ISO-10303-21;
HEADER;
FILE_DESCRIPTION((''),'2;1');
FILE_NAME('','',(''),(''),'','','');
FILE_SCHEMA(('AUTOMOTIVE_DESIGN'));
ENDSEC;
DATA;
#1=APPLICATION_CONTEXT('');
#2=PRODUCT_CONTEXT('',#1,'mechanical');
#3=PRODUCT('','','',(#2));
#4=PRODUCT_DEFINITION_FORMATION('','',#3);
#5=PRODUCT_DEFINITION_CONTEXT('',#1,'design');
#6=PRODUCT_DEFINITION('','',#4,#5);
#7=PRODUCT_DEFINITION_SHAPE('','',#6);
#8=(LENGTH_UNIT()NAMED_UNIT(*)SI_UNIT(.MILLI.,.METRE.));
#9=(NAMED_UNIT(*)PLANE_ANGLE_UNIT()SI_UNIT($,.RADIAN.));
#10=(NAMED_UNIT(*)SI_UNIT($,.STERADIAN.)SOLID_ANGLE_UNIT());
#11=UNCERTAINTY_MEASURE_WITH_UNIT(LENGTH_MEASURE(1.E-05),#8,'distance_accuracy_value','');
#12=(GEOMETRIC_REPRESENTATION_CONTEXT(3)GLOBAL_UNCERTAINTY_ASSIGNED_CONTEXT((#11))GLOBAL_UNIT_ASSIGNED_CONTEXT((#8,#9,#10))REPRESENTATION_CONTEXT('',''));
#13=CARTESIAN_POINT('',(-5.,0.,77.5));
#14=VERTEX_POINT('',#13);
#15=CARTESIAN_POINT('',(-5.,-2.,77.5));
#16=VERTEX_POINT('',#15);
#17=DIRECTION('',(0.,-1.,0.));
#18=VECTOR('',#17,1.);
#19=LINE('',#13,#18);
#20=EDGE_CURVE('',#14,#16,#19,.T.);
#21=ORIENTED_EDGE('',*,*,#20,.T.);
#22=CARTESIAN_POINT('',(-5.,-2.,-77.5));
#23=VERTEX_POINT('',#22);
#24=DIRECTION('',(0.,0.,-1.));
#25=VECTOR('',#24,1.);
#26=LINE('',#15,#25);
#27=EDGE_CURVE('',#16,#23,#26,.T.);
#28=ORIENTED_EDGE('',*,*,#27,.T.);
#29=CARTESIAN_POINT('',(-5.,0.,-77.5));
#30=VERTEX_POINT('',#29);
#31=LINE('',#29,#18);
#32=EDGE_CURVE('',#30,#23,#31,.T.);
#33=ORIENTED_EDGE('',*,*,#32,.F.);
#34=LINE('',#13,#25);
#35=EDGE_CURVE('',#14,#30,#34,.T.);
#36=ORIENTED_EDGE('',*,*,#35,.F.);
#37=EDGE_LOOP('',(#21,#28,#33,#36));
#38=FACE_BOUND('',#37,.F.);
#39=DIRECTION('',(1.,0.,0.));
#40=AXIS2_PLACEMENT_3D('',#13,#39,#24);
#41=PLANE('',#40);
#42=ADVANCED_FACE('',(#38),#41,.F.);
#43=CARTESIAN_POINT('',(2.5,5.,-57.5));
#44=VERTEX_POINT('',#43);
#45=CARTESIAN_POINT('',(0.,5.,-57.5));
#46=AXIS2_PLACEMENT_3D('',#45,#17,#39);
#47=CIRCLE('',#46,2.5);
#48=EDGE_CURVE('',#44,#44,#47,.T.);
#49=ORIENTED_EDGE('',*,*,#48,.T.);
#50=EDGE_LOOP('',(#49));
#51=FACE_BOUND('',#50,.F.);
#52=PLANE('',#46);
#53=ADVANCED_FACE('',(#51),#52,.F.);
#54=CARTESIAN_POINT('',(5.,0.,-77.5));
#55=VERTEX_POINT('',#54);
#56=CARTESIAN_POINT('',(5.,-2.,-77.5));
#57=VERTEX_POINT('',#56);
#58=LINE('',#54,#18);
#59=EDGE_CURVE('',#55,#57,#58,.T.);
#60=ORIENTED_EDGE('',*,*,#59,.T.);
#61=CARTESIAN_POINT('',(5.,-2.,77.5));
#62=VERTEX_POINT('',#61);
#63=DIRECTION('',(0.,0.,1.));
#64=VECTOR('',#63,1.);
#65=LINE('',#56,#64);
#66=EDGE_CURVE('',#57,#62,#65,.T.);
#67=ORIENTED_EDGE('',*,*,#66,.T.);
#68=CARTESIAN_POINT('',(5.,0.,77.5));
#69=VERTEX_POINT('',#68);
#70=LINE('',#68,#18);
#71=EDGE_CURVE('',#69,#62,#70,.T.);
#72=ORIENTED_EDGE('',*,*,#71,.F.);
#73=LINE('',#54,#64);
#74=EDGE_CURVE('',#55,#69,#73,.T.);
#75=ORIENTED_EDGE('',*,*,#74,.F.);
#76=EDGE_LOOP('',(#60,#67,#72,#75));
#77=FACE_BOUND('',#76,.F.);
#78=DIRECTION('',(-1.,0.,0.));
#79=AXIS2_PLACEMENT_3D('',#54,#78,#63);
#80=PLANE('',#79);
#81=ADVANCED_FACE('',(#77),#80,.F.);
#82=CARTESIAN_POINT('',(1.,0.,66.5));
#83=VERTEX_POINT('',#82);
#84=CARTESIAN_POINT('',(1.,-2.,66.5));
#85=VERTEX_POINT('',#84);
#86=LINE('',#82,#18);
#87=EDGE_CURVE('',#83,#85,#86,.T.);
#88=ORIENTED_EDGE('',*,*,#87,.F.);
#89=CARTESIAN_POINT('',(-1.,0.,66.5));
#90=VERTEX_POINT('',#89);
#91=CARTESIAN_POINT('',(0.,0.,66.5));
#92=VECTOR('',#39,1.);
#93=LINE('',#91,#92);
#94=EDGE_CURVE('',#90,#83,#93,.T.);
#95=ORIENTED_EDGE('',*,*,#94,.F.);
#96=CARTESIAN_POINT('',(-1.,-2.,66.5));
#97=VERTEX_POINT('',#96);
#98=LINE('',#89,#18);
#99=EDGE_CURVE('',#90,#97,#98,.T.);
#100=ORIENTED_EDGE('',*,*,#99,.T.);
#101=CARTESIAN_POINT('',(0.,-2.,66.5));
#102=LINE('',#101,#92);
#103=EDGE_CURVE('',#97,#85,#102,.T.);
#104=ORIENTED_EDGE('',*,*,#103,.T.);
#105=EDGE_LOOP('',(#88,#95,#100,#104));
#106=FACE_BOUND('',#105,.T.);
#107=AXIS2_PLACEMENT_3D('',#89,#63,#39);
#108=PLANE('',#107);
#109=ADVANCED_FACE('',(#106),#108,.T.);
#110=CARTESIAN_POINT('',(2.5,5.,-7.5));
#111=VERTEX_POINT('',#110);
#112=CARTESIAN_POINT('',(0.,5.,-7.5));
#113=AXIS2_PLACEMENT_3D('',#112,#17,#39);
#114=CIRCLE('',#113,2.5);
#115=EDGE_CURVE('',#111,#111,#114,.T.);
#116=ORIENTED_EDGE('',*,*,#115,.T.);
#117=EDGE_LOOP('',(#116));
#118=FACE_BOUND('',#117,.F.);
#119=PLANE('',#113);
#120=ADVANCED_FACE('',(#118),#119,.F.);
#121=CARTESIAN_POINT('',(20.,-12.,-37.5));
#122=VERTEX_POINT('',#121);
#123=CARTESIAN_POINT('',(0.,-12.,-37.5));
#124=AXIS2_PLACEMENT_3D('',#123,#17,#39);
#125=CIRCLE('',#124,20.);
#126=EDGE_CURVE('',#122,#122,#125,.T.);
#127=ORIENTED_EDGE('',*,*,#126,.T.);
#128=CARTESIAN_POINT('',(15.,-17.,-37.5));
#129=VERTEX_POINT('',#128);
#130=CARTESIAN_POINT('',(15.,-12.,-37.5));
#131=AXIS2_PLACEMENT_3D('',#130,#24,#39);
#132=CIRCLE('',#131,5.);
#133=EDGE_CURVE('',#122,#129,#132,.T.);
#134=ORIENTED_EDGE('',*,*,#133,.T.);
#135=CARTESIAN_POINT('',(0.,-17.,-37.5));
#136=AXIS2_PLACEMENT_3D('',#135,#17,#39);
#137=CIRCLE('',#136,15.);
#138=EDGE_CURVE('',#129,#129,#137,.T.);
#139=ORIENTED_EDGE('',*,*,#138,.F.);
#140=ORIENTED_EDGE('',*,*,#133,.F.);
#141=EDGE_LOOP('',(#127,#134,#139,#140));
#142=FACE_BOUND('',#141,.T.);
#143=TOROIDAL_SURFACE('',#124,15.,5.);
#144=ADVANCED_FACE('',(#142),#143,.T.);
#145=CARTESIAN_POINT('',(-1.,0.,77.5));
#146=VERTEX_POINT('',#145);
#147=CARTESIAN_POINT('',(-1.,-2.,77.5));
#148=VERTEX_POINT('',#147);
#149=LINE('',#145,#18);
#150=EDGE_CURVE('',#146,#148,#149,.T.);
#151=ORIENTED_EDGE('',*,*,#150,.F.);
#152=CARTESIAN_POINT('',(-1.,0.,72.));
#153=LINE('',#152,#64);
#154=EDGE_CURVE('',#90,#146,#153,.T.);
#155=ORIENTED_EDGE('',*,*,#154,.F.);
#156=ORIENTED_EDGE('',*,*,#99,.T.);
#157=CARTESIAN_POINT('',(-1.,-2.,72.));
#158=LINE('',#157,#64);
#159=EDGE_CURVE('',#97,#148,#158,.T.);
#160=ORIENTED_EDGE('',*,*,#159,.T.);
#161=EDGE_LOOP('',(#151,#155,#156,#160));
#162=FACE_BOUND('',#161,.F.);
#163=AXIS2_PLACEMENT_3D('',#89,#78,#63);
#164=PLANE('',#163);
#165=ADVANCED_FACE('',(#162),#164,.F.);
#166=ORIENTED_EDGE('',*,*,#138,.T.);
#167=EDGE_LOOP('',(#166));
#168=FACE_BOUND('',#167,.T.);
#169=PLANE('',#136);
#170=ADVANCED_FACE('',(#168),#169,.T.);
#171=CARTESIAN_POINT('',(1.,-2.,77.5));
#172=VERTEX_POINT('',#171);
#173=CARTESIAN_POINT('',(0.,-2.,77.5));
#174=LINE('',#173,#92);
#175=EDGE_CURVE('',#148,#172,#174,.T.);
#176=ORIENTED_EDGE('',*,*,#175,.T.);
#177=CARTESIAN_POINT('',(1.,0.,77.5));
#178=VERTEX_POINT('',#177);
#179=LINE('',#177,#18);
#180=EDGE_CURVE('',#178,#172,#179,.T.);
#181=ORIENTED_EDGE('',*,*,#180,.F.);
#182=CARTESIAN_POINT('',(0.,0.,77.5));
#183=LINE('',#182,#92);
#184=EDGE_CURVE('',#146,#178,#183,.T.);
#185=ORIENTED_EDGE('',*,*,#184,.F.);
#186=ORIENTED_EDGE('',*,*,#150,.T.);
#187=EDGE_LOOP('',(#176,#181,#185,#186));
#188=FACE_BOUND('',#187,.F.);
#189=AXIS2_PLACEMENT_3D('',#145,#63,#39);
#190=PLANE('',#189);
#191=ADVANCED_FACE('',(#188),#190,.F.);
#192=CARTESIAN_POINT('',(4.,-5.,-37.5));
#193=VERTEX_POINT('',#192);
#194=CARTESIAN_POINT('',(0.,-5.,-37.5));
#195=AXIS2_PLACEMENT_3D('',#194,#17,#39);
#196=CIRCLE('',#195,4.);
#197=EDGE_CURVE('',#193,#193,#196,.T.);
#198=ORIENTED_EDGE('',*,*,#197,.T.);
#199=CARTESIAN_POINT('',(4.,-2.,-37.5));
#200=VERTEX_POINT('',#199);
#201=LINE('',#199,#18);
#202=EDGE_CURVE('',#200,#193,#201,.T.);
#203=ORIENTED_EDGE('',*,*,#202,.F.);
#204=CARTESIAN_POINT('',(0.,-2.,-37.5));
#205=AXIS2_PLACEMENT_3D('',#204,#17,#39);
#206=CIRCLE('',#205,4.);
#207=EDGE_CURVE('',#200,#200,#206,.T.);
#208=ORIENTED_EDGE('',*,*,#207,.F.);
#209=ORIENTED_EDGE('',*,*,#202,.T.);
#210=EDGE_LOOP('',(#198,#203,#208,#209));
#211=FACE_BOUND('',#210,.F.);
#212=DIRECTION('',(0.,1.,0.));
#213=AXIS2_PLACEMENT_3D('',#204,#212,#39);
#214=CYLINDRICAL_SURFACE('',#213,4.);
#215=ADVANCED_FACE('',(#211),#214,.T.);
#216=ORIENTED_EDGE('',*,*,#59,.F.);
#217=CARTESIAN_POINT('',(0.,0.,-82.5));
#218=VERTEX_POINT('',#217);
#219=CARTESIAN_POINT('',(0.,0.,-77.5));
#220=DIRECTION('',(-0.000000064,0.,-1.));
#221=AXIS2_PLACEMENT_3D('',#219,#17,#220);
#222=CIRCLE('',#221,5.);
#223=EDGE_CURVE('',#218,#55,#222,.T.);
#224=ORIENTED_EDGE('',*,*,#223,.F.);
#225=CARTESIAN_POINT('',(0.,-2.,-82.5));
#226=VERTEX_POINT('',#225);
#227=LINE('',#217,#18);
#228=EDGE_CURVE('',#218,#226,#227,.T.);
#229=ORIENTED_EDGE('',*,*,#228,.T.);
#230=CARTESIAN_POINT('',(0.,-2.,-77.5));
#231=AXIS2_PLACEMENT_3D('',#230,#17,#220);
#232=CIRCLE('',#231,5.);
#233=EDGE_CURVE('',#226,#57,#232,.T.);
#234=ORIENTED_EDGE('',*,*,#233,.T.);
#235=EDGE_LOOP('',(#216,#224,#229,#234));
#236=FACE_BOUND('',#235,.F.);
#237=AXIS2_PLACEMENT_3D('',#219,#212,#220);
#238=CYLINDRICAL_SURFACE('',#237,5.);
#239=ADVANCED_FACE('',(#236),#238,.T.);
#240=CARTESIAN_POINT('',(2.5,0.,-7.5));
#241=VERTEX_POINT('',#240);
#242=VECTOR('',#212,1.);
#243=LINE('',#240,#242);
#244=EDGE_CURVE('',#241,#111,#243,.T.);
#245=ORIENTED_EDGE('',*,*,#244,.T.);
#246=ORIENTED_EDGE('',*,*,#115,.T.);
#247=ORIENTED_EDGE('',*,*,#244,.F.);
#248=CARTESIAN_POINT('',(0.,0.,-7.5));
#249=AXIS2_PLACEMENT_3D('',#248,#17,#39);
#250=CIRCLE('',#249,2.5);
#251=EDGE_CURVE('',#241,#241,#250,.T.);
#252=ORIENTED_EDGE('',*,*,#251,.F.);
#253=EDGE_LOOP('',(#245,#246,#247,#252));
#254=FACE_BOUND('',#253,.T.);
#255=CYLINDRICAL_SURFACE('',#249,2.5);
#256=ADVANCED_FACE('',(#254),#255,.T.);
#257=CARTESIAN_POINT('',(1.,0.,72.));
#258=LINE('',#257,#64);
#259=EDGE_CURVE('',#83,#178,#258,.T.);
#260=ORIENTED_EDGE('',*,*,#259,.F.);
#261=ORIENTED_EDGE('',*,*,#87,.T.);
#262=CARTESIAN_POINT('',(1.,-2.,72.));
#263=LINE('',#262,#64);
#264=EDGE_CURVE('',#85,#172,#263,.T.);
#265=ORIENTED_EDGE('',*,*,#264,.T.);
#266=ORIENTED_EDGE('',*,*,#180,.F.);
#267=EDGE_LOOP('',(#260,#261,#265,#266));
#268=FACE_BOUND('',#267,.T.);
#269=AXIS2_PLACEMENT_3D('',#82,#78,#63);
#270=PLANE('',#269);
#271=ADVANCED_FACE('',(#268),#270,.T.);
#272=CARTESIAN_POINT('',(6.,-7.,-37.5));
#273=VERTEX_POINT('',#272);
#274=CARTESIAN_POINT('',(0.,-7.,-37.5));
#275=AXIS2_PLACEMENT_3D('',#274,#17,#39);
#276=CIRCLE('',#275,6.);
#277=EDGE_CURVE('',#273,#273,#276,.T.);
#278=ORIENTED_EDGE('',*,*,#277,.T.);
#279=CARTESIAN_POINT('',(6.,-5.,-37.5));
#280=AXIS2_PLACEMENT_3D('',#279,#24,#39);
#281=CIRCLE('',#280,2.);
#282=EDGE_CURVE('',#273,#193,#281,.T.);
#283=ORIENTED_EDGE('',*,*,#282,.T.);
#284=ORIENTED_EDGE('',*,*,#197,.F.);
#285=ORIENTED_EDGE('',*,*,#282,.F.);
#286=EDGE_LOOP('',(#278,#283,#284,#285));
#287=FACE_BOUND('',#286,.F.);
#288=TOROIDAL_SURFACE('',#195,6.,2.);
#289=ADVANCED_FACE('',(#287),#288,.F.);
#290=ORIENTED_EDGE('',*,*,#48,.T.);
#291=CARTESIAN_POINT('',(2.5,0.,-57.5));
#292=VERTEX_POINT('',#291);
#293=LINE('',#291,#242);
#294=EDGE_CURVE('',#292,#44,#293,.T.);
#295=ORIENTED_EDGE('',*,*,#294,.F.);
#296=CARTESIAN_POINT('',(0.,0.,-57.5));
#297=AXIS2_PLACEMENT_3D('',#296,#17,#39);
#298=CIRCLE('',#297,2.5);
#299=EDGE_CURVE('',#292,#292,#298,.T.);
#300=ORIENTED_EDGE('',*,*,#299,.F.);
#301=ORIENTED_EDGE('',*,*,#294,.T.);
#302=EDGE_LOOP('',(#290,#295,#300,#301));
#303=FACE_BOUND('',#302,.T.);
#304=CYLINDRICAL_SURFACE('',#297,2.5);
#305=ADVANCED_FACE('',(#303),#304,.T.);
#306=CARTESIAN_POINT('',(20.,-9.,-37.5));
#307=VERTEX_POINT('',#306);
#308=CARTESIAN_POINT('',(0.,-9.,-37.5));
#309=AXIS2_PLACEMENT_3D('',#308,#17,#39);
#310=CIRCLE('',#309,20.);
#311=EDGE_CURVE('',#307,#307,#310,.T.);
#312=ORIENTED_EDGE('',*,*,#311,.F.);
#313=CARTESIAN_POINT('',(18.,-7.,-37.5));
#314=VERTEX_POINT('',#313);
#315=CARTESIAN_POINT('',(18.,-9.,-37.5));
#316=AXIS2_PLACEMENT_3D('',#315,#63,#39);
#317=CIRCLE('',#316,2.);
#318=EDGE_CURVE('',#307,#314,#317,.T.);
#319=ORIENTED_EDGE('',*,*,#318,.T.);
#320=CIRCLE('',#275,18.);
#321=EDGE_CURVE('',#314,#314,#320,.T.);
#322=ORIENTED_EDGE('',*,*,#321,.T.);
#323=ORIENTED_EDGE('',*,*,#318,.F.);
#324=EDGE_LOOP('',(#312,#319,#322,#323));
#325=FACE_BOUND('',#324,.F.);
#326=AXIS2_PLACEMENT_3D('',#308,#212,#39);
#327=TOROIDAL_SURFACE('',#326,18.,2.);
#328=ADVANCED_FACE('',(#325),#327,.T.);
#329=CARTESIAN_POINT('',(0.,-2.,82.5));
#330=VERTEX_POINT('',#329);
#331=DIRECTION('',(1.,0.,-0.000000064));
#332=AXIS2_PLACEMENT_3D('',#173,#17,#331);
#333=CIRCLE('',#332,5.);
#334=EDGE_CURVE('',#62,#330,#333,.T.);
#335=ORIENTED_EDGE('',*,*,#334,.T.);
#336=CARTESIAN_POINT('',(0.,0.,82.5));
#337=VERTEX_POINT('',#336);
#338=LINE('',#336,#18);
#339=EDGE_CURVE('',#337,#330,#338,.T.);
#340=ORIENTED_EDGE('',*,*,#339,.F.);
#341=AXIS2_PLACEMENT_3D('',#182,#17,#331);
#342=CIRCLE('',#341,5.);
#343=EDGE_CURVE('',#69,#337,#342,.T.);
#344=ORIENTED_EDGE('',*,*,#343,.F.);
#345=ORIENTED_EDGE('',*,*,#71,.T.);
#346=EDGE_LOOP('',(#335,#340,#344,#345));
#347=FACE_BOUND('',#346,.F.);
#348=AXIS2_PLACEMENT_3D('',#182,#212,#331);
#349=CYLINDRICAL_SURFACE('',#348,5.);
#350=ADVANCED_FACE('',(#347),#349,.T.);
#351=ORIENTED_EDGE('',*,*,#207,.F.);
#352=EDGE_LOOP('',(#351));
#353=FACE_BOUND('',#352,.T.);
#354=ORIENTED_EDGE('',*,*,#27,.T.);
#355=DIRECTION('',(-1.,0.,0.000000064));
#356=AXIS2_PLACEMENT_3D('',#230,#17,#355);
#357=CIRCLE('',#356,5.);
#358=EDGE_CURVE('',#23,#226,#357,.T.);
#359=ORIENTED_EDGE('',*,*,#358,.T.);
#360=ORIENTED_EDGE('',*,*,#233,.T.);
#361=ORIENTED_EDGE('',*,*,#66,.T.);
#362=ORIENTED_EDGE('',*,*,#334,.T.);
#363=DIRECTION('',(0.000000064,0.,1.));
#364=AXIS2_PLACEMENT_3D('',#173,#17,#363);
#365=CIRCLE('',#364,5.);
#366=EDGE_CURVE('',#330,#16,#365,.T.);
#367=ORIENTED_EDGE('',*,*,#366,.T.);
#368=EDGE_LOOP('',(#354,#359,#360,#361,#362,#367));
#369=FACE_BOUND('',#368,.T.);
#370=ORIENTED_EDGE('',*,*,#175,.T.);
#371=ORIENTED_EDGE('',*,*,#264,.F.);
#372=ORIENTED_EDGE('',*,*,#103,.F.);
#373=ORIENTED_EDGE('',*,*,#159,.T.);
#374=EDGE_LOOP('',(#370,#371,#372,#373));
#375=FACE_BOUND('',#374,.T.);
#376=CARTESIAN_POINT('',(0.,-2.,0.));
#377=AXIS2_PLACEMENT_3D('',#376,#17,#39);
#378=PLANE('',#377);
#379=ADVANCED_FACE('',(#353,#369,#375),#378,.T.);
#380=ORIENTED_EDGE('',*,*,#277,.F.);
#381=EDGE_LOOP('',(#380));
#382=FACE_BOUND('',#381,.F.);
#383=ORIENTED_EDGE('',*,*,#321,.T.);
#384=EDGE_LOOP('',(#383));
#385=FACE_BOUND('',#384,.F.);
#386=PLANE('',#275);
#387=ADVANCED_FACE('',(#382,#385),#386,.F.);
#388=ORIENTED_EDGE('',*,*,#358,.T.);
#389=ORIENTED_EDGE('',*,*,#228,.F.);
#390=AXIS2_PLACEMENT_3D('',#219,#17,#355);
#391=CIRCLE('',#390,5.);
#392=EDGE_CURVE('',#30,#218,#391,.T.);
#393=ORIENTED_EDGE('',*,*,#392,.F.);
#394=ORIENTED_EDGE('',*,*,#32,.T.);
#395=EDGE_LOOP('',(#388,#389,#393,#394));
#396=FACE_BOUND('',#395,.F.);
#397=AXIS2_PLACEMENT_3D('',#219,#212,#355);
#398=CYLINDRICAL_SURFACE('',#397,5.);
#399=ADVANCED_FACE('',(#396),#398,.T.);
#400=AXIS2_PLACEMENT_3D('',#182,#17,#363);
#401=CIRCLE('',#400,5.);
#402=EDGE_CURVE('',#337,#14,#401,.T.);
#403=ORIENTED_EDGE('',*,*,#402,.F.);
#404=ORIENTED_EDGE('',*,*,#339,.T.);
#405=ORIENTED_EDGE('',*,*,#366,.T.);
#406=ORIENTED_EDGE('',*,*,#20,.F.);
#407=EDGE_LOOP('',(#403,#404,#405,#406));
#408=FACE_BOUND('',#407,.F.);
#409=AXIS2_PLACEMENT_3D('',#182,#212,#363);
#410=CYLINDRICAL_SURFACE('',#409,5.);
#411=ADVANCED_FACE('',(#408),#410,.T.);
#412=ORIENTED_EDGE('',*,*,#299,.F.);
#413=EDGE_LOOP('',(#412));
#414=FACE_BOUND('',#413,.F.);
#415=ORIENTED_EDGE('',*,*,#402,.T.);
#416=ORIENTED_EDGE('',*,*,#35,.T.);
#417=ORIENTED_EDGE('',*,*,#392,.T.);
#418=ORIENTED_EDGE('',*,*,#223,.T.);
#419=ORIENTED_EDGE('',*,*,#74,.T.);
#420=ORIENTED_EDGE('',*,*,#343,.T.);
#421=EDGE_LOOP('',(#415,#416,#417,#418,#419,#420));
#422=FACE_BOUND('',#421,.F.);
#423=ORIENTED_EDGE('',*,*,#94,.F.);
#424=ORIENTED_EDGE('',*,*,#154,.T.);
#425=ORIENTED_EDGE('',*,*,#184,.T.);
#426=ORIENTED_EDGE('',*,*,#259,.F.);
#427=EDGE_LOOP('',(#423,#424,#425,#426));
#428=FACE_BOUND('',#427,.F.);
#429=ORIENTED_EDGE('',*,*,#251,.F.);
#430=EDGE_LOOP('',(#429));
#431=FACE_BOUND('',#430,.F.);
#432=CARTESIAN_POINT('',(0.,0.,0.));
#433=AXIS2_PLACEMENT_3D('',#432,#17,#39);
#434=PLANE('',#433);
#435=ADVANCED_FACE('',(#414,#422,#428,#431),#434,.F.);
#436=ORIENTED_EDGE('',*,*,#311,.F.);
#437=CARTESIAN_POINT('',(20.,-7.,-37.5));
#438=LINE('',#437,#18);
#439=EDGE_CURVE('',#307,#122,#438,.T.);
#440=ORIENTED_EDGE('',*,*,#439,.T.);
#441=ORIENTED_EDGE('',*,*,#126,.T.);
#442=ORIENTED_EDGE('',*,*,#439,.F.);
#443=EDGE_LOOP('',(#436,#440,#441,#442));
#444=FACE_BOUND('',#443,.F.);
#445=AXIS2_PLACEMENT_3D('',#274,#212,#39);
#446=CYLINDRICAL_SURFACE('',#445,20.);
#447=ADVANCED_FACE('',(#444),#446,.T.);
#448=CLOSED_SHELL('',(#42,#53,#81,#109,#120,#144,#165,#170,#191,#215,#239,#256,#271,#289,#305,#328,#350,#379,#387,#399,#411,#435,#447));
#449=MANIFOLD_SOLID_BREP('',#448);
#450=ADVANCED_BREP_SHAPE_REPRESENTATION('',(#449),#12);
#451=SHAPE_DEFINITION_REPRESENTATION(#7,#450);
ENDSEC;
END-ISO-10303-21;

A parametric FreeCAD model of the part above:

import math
import FreeCAD as App
import Part
import Sketcher

V = App.Vector
Q = App.Units.Quantity


def edges_at(feature, points):
    """Names of the edges that pass closest to the given points."""
    edges = feature.Shape.Edges
    near = lambda p: min(range(len(edges)), key=lambda i: edges[i].distToShape(Part.Vertex(*p))[0])
    return sorted({f"Edge{near(p) + 1}" for p in points})


def add_polygon(sketch, points):
    """Adds a closed chain of lines whose ends are joined by coincident constraints."""
    first, n = sketch.GeometryCount, len(points)
    for a, b in zip(points, points[1:] + points[:1]):
        sketch.addGeometry(Part.LineSegment(App.Vector(*a, 0), App.Vector(*b, 0)), False)
    for i in range(n):
        sketch.addConstraint(Sketcher.Constraint("Coincident", first + i, 2, first + (i + 1) % n, 1))

doc = App.newDocument("Part")
body = doc.addObject("PartDesign::Body", "Body")

sketch1 = body.newObject("Sketcher::SketchObject", "Sketch")
sketch1.AttachmentSupport = (doc.getObject("XZ_Plane"), [""])
sketch1.MapMode = "FlatFace"
sketch1.addGeometry(Part.LineSegment(V(5, -77.5, 0), V(5, 77.5, 0)), False)
sketch1.addGeometry(Part.ArcOfCircle(Part.Circle(V(0, 77.5, 0), V(0, 0, 1), 5), math.radians(-0.000004), math.radians(90.000004)), False)
sketch1.addGeometry(Part.ArcOfCircle(Part.Circle(V(0, 77.5, 0), V(0, 0, 1), 5), math.radians(89.999996), math.radians(180.000004)), False)
sketch1.addGeometry(Part.LineSegment(V(-5, 77.5, 0), V(-5, -77.5, 0)), False)
sketch1.addGeometry(Part.ArcOfCircle(Part.Circle(V(0, -77.5, 0), V(0, 0, 1), 5), math.radians(179.999996), math.radians(270.000004)), False)
sketch1.addGeometry(Part.ArcOfCircle(Part.Circle(V(0, -77.5, 0), V(0, 0, 1), 5), math.radians(-90.000004), math.radians(0.000004)), False)
add_polygon(sketch1, [(1, 66.5), (-1, 66.5), (-1, 77.5), (1, 77.5)])
sketch1.addConstraint([
    Sketcher.Constraint("Tangent", 0, 2, 1, 1),
    Sketcher.Constraint("Tangent", 1, 2, 2, 1),
    Sketcher.Constraint("Tangent", 2, 2, 3, 1),
    Sketcher.Constraint("Tangent", 3, 2, 4, 1),
    Sketcher.Constraint("Tangent", 4, 2, 5, 1),
    Sketcher.Constraint("Tangent", 5, 2, 0, 1),
    Sketcher.Constraint("Vertical", 0),
    Sketcher.Constraint("Vertical", 3),
    Sketcher.Constraint("Horizontal", 6),
    Sketcher.Constraint("Vertical", 7),
    Sketcher.Constraint("Horizontal", 8),
    Sketcher.Constraint("Vertical", 9),
    Sketcher.Constraint("Equal", 1, 2),
    Sketcher.Constraint("Equal", 2, 4),
    Sketcher.Constraint("Symmetric", 1, 3, 4, 3, -1, 1),
    Sketcher.Constraint("PointOnObject", 1, 2, -2),
    Sketcher.Constraint("PointOnObject", 4, 2, -2),
    Sketcher.Constraint("Horizontal", 2, 2, 7, 2),
    Sketcher.Constraint("Radius", 1, Q("5 mm")),
    Sketcher.Constraint("DistanceX", 6, 2, 6, 1, Q("2 mm")),
    Sketcher.Constraint("DistanceY", 0, 1, 0, 2, Q("155 mm")),
    Sketcher.Constraint("DistanceY", 7, 1, 7, 2, Q("11 mm")),
    Sketcher.Constraint("DistanceX", 6, 2, -1, 1, Q("1 mm")),
])
pad1 = body.newObject("PartDesign::Pad", "Pad")
pad1.Profile = sketch1
pad1.Length = 2

sketch2 = body.newObject("Sketcher::SketchObject", "Sketch001")
sketch2.AttachmentSupport = (doc.getObject("XZ_Plane"), [""])
sketch2.MapMode = "FlatFace"
sketch2.addGeometry([
    Part.Circle(V(0, -7.5, 0), V(0, 0, 1), 2.5),
    Part.Circle(V(0, -57.5, 0), V(0, 0, 1), 2.5),
], False)
sketch2.addConstraint([
    Sketcher.Constraint("Equal", 0, 1),
    Sketcher.Constraint("PointOnObject", 0, 3, -2),
    Sketcher.Constraint("PointOnObject", 1, 3, -2),
    Sketcher.Constraint("Diameter", 0, Q("5 mm")),
    Sketcher.Constraint("DistanceY", 1, 3, 0, 3, Q("50 mm")),
    Sketcher.Constraint("DistanceY", 0, 3, -1, 1, Q("7.5 mm")),
])
pad2 = body.newObject("PartDesign::Pad", "Pad001")
pad2.Profile = sketch2
pad2.Length = 5
pad2.Reversed = True

sketch3 = body.newObject("Sketcher::SketchObject", "Sketch002")
sketch3.AttachmentSupport = (doc.getObject("XZ_Plane"), [""])
sketch3.MapMode = "FlatFace"
sketch3.AttachmentOffset = App.Placement(V(0, 0, 2), App.Rotation())
sketch3.addGeometry(Part.Circle(V(0, -37.5, 0), V(0, 0, 1), 4), False)
sketch3.addConstraint([
    Sketcher.Constraint("PointOnObject", 0, 3, -2),
    Sketcher.Constraint("Diameter", 0, Q("8 mm")),
    Sketcher.Constraint("DistanceY", 0, 3, -1, 1, Q("37.5 mm")),
])
pad3 = body.newObject("PartDesign::Pad", "Pad002")
pad3.Profile = sketch3
pad3.Length = 5

sketch4 = body.newObject("Sketcher::SketchObject", "Sketch003")
sketch4.AttachmentSupport = (doc.getObject("XZ_Plane"), [""])
sketch4.MapMode = "FlatFace"
sketch4.AttachmentOffset = App.Placement(V(0, 0, 7), App.Rotation())
sketch4.addGeometry(Part.Circle(V(0, -37.5, 0), V(0, 0, 1), 20), False)
sketch4.addConstraint([
    Sketcher.Constraint("PointOnObject", 0, 3, -2),
    Sketcher.Constraint("Diameter", 0, Q("40 mm")),
    Sketcher.Constraint("DistanceY", 0, 3, -1, 1, Q("37.5 mm")),
])
pad4 = body.newObject("PartDesign::Pad", "Pad003")
pad4.Profile = sketch4
pad4.Length = 10
doc.recompute()

fillet = body.newObject("PartDesign::Fillet", "Fillet")
fillet.Base = (pad4, edges_at(pad4, [(-20, -17, -37.5)]))
fillet.Radius = 5
doc.recompute()

fillet2 = body.newObject("PartDesign::Fillet", "Fillet001")
fillet2.Base = (fillet, edges_at(fillet, [(-4, -7, -37.5), (-20, -7, -37.5)]))
fillet2.Radius = 2

doc.recompute()
